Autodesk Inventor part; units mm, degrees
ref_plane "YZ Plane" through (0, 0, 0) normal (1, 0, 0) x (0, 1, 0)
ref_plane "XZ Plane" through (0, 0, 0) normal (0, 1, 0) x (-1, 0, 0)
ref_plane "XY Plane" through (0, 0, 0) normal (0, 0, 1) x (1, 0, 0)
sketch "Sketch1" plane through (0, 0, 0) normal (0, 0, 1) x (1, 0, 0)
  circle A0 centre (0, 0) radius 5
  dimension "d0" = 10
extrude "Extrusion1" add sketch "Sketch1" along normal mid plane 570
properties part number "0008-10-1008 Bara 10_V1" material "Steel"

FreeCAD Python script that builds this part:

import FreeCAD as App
import Part
import Sketcher

V = App.Vector

doc = App.newDocument("Part")
body = doc.addObject("PartDesign::Body", "Body")

sketch1 = body.newObject("Sketcher::SketchObject", "Sketch")
sketch1.AttachmentSupport = (doc.getObject("XY_Plane"), [""])
sketch1.MapMode = "FlatFace"
sketch1.addGeometry(Part.Circle(V(0, 0, 0), V(0, 0, 1), 5), False)
sketch1.addConstraint(Sketcher.Constraint("Coincident", 0, 3, -1, 1))
sketch1.addConstraint(Sketcher.Constraint("Diameter", 0, 10.0))
pad1 = body.newObject("PartDesign::Pad", "Pad")
pad1.Profile = sketch1
pad1.Length = 570
pad1.Midplane = True

doc.recompute()
